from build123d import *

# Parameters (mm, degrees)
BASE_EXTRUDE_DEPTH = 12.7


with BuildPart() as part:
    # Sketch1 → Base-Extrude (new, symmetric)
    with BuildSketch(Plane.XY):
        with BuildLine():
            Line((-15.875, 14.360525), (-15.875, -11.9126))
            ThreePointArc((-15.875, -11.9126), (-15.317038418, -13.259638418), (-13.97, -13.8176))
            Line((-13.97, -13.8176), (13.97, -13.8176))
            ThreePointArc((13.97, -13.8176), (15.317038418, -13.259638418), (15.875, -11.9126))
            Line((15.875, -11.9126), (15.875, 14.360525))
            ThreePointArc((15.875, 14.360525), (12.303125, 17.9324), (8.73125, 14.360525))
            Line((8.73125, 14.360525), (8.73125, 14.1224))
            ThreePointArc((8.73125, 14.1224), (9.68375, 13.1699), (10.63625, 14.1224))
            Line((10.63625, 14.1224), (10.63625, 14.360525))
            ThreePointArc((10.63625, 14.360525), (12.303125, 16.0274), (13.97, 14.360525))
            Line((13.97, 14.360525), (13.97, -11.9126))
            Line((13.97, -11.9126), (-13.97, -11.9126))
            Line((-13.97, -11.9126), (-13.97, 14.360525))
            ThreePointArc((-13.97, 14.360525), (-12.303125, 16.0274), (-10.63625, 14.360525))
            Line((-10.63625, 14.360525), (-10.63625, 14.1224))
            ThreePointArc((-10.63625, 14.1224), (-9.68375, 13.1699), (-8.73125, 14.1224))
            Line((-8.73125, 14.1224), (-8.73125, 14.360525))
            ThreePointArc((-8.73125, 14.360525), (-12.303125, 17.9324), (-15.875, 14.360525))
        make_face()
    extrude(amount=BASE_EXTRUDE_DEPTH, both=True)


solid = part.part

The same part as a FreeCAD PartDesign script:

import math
import FreeCAD as App
import Part
import Sketcher
Q = App.Units.Quantity

doc = App.newDocument("Part")
body = doc.addObject("PartDesign::Body", "Body")

# Sketch on XY plane
sketch1 = doc.addObject("Sketcher::SketchObject", "Sketch")
body.addObject(sketch1)
sketch1.AttachmentSupport = (doc.XY_Plane, [""])
sketch1.MapMode = "FlatFace"
sketch1.addGeometry(Part.LineSegment(App.Vector(-15.875, 14.360525, 0), App.Vector(-15.875, -11.9126, 0)), False)
sketch1.addGeometry(Part.ArcOfCircle(Part.Circle(App.Vector(-13.97, -11.9126, 0), App.Vector(0, 0, 1), 1.905), math.radians(-180), math.radians(-90)), False)
sketch1.addGeometry(Part.LineSegment(App.Vector(-13.97, -13.8176, 0), App.Vector(13.97, -13.8176, 0)), False)
sketch1.addGeometry(Part.ArcOfCircle(Part.Circle(App.Vector(13.97, -11.9126, 0), App.Vector(0, 0, 1), 1.905), math.radians(-90), math.radians(0)), False)
sketch1.addGeometry(Part.LineSegment(App.Vector(15.875, -11.9126, 0), App.Vector(15.875, 14.360525, 0)), False)
sketch1.addGeometry(Part.ArcOfCircle(Part.Circle(App.Vector(12.303125, 14.360525, 0), App.Vector(0, 0, 1), 3.571875), math.radians(0), math.radians(180)), False)
sketch1.addGeometry(Part.LineSegment(App.Vector(8.73125, 14.360525, 0), App.Vector(8.73125, 14.1224, 0)), False)
sketch1.addGeometry(Part.ArcOfCircle(Part.Circle(App.Vector(9.68375, 14.1224, 0), App.Vector(0, 0, 1), 0.9525), math.radians(180), math.radians(360)), False)
sketch1.addGeometry(Part.LineSegment(App.Vector(10.63625, 14.1224, 0), App.Vector(10.63625, 14.360525, 0)), False)
sketch1.addGeometry(Part.ArcOfCircle(Part.Circle(App.Vector(12.303125, 14.360525, 0), App.Vector(0, 0, 1), 1.666875), math.radians(0), math.radians(180)), False)
sketch1.addGeometry(Part.LineSegment(App.Vector(13.97, 14.360525, 0), App.Vector(13.97, -11.9126, 0)), False)
sketch1.addGeometry(Part.LineSegment(App.Vector(13.97, -11.9126, 0), App.Vector(-13.97, -11.9126, 0)), False)
sketch1.addGeometry(Part.LineSegment(App.Vector(-13.97, -11.9126, 0), App.Vector(-13.97, 14.360525, 0)), False)
sketch1.addGeometry(Part.ArcOfCircle(Part.Circle(App.Vector(-12.303125, 14.360525, 0), App.Vector(0, 0, 1), 1.666875), math.radians(0), math.radians(180)), False)
sketch1.addGeometry(Part.LineSegment(App.Vector(-10.63625, 14.360525, 0), App.Vector(-10.63625, 14.1224, 0)), False)
sketch1.addGeometry(Part.ArcOfCircle(Part.Circle(App.Vector(-9.68375, 14.1224, 0), App.Vector(0, 0, 1), 0.9525), math.radians(180), math.radians(360)), False)
sketch1.addGeometry(Part.LineSegment(App.Vector(-8.73125, 14.1224, 0), App.Vector(-8.73125, 14.360525, 0)), False)
sketch1.addGeometry(Part.ArcOfCircle(Part.Circle(App.Vector(-12.303125, 14.360525, 0), App.Vector(0, 0, 1), 3.571875), math.radians(0), math.radians(180)), False)
sketch1.addConstraint(Sketcher.Constraint("Tangent", 0, 2, 1, 1))
sketch1.addConstraint(Sketcher.Constraint("Tangent", 1, 2, 2, 1))
sketch1.addConstraint(Sketcher.Constraint("Tangent", 2, 2, 3, 1))
sketch1.addConstraint(Sketcher.Constraint("Tangent", 3, 2, 4, 1))
sketch1.addConstraint(Sketcher.Constraint("Tangent", 4, 2, 5, 1))
sketch1.addConstraint(Sketcher.Constraint("Tangent", 5, 2, 6, 1))
sketch1.addConstraint(Sketcher.Constraint("Tangent", 6, 2, 7, 1))
sketch1.addConstraint(Sketcher.Constraint("Tangent", 7, 2, 8, 1))
sketch1.addConstraint(Sketcher.Constraint("Tangent", 8, 2, 9, 2))
sketch1.addConstraint(Sketcher.Constraint("Tangent", 9, 1, 10, 1))
sketch1.addConstraint(Sketcher.Constraint("Coincident", 10, 2, 11, 1))
sketch1.addConstraint(Sketcher.Constraint("Coincident", 11, 2, 12, 1))
sketch1.addConstraint(Sketcher.Constraint("Tangent", 12, 2, 13, 2))
sketch1.addConstraint(Sketcher.Constraint("Tangent", 13, 1, 14, 1))
sketch1.addConstraint(Sketcher.Constraint("Tangent", 14, 2, 15, 1))
sketch1.addConstraint(Sketcher.Constraint("Tangent", 15, 2, 16, 1))
sketch1.addConstraint(Sketcher.Constraint("Tangent", 16, 2, 17, 1))
sketch1.addConstraint(Sketcher.Constraint("Tangent", 17, 2, 0, 1))
sketch1.addConstraint(Sketcher.Constraint("Vertical", 0))
sketch1.addConstraint(Sketcher.Constraint("Horizontal", 2))
sketch1.addConstraint(Sketcher.Constraint("Vertical", 4))
sketch1.addConstraint(Sketcher.Constraint("Vertical", 6))
sketch1.addConstraint(Sketcher.Constraint("Vertical", 8))
sketch1.addConstraint(Sketcher.Constraint("Vertical", 10))
sketch1.addConstraint(Sketcher.Constraint("Horizontal", 11))
sketch1.addConstraint(Sketcher.Constraint("Vertical", 12))
sketch1.addConstraint(Sketcher.Constraint("Vertical", 14))
sketch1.addConstraint(Sketcher.Constraint("Vertical", 16))
sketch1.addConstraint(Sketcher.Constraint("Coincident", 9, 3, 5, 3))
sketch1.addConstraint(Sketcher.Constraint("Coincident", 17, 3, 13, 3))
sketch1.addConstraint(Sketcher.Constraint("Coincident", 10, 2, 3, 3))
sketch1.addConstraint(Sketcher.Constraint("Coincident", 11, 2, 1, 3))
sketch1.addConstraint(Sketcher.Constraint("Equal", 9, 13))
sketch1.addConstraint(Sketcher.Constraint("Symmetric", 5, 3, 13, 3, -2))
sketch1.addConstraint(Sketcher.Constraint("Horizontal", 7, 3, 15, 3))
sketch1.addConstraint(Sketcher.Constraint("DistanceX", 2, 1, 2, 2, Q("1.1 in")))
sketch1.addConstraint(Sketcher.Constraint("Radius", 1, Q("0.075 in")))
sketch1.addConstraint(Sketcher.Constraint("Radius", 5, Q("0.140625 in")))
sketch1.addConstraint(Sketcher.Constraint("DistanceY", 1, 3, -1, 1, Q("0.469 in")))
sketch1.addConstraint(Sketcher.Constraint("DistanceY", -1, 1, 7, 3, Q("0.556 in")))
sketch1.addConstraint(Sketcher.Constraint("DistanceY", 1, 2, 13, 3, Q("1.109375 in")))
pad1 = doc.addObject("PartDesign::Pad", "Pad")
body.addObject(pad1)
pad1.Profile = sketch1
pad1.Length = Q("1 in")
pad1.Midplane = True

doc.recompute()
